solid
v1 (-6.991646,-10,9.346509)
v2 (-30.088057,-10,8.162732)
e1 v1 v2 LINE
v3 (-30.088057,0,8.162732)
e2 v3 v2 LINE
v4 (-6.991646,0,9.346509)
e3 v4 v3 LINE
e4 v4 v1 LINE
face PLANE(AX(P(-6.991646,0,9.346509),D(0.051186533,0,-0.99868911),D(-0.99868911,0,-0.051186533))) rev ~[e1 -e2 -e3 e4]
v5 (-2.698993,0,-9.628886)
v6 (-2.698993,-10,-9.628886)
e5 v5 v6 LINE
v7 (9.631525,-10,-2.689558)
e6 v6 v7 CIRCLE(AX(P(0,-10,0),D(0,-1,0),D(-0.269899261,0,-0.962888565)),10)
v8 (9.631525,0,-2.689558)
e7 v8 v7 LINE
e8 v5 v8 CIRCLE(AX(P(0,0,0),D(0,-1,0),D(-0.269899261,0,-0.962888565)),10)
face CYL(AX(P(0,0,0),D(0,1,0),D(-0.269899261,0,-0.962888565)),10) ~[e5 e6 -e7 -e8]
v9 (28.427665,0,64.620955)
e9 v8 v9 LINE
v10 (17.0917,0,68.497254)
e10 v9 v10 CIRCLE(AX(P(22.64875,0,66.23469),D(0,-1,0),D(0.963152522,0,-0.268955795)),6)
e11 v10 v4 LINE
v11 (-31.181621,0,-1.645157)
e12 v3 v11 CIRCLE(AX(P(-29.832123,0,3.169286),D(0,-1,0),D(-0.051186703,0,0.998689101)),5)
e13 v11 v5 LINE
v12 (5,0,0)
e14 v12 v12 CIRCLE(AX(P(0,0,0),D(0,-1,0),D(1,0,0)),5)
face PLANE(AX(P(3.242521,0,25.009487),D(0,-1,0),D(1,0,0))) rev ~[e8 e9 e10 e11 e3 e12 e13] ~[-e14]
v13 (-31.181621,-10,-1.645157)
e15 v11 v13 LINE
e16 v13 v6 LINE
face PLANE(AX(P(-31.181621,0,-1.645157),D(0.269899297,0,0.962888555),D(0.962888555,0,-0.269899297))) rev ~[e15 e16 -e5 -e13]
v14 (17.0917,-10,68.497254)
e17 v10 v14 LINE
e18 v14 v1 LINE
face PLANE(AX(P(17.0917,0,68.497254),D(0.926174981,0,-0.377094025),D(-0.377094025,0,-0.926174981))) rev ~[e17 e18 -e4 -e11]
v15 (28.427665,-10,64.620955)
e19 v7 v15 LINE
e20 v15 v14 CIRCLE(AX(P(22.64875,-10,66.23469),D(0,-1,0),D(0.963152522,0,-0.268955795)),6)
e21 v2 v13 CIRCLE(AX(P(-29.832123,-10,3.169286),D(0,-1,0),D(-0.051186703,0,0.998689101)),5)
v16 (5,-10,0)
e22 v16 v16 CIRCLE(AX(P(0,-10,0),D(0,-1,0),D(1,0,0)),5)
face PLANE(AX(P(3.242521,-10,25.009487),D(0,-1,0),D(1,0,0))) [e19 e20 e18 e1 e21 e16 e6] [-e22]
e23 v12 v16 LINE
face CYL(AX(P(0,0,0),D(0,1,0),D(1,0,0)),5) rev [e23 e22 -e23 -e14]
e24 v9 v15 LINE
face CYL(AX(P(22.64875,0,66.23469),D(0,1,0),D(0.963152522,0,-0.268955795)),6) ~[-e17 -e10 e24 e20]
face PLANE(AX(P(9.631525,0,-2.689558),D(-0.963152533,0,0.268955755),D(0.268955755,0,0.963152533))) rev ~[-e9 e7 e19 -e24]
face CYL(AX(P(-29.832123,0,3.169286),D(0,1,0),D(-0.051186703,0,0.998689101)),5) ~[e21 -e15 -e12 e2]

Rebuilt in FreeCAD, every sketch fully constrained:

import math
import FreeCAD as App
import Part
import Sketcher

V = App.Vector

doc = App.newDocument("Part")
params = doc.addObject("Spreadsheet::Sheet", "Params")
for row, (alias, value) in enumerate([
    ("sketch1_diameter", "10 mm"),
    ("sketch1_radius", "10 mm"),
    ("sketch1_radius2", "6 mm"),
    ("pad1_length", "10 mm"),
], start=1):
    params.set(f"A{row}", alias)
    params.set(f"B{row}", "=" + value)
    params.setAlias(f"B{row}", alias)

body = doc.addObject("PartDesign::Body", "Body")

# Sketch on XZ plane
sketch1 = body.newObject("Sketcher::SketchObject", "Sketch")
sketch1.AttachmentSupport = (doc.getObject("XZ_Plane"), [""])
sketch1.MapMode = "FlatFace"
sketch1.addGeometry([
    Part.LineSegment(V(-31, -2, 0), V(-3, -10, 0)),  # 0
    Part.ArcOfCircle(Part.Circle(V(0, 0, 0), V(0, 0, 1), 10), math.radians(-106), math.radians(-16)),  # 1
    Part.LineSegment(V(10, -3, 0), V(28, 65, 0)),  # 2
    Part.ArcOfCircle(Part.Circle(V(23, 66, 0), V(0, 0, 1), 6), math.radians(-16), math.radians(158)),  # 3
    Part.LineSegment(V(17, 68, 0), V(-7, 9, 0)),  # 4
    Part.LineSegment(V(-7, 9, 0), V(-30, 8, 0)),  # 5
    Part.ArcOfCircle(Part.Circle(V(-30, 3, 0), V(0, 0, 1), 5), math.radians(93), math.radians(254)),  # 6
    Part.Circle(V(0, 0, 0), V(0, 0, 1), 5),  # 7
], False)
sketch1.addConstraint([
    Sketcher.Constraint("Tangent", 0, 2, 1, 1),
    Sketcher.Constraint("Tangent", 1, 2, 2, 1),
    Sketcher.Constraint("Tangent", 2, 2, 3, 1),
    Sketcher.Constraint("Tangent", 3, 2, 4, 1),
    Sketcher.Constraint("Coincident", 4, 2, 5, 1),
    Sketcher.Constraint("Tangent", 5, 2, 6, 1),
    Sketcher.Constraint("Tangent", 6, 2, 0, 1),
    Sketcher.Constraint("Coincident", 1, 3, -1, 1),
    Sketcher.Constraint("Coincident", 7, 3, -1, 1),
    Sketcher.Constraint("Equal", 6, 7),
    Sketcher.Constraint("Diameter", 7, 10.0),
    Sketcher.Constraint("Radius", 1, 10.0),
    Sketcher.Constraint("Radius", 3, 6.0),
    Sketcher.Constraint("Distance", 0, 29.580399),
    Sketcher.Constraint("DistanceX", -1, 1, 3, 2, 17.0917),
    Sketcher.Constraint("DistanceY", 2, 2, 3, 2, 3.876299),
    Sketcher.Constraint("Distance", 2, 69.885621),
    Sketcher.Constraint("DistanceY", -1, 1, 4, 2, 9.346509),
    Sketcher.Constraint("DistanceX", 6, 2, -1, 1, 31.181621),
])
sketch1.setExpression("Constraints[10]", "Params.sketch1_diameter")
sketch1.setExpression("Constraints[11]", "Params.sketch1_radius")
sketch1.setExpression("Constraints[12]", "Params.sketch1_radius2")
pad1 = body.newObject("PartDesign::Pad", "Pad")
pad1.Profile = sketch1
pad1.setExpression("Length", "Params.pad1_length")

doc.recompute()
